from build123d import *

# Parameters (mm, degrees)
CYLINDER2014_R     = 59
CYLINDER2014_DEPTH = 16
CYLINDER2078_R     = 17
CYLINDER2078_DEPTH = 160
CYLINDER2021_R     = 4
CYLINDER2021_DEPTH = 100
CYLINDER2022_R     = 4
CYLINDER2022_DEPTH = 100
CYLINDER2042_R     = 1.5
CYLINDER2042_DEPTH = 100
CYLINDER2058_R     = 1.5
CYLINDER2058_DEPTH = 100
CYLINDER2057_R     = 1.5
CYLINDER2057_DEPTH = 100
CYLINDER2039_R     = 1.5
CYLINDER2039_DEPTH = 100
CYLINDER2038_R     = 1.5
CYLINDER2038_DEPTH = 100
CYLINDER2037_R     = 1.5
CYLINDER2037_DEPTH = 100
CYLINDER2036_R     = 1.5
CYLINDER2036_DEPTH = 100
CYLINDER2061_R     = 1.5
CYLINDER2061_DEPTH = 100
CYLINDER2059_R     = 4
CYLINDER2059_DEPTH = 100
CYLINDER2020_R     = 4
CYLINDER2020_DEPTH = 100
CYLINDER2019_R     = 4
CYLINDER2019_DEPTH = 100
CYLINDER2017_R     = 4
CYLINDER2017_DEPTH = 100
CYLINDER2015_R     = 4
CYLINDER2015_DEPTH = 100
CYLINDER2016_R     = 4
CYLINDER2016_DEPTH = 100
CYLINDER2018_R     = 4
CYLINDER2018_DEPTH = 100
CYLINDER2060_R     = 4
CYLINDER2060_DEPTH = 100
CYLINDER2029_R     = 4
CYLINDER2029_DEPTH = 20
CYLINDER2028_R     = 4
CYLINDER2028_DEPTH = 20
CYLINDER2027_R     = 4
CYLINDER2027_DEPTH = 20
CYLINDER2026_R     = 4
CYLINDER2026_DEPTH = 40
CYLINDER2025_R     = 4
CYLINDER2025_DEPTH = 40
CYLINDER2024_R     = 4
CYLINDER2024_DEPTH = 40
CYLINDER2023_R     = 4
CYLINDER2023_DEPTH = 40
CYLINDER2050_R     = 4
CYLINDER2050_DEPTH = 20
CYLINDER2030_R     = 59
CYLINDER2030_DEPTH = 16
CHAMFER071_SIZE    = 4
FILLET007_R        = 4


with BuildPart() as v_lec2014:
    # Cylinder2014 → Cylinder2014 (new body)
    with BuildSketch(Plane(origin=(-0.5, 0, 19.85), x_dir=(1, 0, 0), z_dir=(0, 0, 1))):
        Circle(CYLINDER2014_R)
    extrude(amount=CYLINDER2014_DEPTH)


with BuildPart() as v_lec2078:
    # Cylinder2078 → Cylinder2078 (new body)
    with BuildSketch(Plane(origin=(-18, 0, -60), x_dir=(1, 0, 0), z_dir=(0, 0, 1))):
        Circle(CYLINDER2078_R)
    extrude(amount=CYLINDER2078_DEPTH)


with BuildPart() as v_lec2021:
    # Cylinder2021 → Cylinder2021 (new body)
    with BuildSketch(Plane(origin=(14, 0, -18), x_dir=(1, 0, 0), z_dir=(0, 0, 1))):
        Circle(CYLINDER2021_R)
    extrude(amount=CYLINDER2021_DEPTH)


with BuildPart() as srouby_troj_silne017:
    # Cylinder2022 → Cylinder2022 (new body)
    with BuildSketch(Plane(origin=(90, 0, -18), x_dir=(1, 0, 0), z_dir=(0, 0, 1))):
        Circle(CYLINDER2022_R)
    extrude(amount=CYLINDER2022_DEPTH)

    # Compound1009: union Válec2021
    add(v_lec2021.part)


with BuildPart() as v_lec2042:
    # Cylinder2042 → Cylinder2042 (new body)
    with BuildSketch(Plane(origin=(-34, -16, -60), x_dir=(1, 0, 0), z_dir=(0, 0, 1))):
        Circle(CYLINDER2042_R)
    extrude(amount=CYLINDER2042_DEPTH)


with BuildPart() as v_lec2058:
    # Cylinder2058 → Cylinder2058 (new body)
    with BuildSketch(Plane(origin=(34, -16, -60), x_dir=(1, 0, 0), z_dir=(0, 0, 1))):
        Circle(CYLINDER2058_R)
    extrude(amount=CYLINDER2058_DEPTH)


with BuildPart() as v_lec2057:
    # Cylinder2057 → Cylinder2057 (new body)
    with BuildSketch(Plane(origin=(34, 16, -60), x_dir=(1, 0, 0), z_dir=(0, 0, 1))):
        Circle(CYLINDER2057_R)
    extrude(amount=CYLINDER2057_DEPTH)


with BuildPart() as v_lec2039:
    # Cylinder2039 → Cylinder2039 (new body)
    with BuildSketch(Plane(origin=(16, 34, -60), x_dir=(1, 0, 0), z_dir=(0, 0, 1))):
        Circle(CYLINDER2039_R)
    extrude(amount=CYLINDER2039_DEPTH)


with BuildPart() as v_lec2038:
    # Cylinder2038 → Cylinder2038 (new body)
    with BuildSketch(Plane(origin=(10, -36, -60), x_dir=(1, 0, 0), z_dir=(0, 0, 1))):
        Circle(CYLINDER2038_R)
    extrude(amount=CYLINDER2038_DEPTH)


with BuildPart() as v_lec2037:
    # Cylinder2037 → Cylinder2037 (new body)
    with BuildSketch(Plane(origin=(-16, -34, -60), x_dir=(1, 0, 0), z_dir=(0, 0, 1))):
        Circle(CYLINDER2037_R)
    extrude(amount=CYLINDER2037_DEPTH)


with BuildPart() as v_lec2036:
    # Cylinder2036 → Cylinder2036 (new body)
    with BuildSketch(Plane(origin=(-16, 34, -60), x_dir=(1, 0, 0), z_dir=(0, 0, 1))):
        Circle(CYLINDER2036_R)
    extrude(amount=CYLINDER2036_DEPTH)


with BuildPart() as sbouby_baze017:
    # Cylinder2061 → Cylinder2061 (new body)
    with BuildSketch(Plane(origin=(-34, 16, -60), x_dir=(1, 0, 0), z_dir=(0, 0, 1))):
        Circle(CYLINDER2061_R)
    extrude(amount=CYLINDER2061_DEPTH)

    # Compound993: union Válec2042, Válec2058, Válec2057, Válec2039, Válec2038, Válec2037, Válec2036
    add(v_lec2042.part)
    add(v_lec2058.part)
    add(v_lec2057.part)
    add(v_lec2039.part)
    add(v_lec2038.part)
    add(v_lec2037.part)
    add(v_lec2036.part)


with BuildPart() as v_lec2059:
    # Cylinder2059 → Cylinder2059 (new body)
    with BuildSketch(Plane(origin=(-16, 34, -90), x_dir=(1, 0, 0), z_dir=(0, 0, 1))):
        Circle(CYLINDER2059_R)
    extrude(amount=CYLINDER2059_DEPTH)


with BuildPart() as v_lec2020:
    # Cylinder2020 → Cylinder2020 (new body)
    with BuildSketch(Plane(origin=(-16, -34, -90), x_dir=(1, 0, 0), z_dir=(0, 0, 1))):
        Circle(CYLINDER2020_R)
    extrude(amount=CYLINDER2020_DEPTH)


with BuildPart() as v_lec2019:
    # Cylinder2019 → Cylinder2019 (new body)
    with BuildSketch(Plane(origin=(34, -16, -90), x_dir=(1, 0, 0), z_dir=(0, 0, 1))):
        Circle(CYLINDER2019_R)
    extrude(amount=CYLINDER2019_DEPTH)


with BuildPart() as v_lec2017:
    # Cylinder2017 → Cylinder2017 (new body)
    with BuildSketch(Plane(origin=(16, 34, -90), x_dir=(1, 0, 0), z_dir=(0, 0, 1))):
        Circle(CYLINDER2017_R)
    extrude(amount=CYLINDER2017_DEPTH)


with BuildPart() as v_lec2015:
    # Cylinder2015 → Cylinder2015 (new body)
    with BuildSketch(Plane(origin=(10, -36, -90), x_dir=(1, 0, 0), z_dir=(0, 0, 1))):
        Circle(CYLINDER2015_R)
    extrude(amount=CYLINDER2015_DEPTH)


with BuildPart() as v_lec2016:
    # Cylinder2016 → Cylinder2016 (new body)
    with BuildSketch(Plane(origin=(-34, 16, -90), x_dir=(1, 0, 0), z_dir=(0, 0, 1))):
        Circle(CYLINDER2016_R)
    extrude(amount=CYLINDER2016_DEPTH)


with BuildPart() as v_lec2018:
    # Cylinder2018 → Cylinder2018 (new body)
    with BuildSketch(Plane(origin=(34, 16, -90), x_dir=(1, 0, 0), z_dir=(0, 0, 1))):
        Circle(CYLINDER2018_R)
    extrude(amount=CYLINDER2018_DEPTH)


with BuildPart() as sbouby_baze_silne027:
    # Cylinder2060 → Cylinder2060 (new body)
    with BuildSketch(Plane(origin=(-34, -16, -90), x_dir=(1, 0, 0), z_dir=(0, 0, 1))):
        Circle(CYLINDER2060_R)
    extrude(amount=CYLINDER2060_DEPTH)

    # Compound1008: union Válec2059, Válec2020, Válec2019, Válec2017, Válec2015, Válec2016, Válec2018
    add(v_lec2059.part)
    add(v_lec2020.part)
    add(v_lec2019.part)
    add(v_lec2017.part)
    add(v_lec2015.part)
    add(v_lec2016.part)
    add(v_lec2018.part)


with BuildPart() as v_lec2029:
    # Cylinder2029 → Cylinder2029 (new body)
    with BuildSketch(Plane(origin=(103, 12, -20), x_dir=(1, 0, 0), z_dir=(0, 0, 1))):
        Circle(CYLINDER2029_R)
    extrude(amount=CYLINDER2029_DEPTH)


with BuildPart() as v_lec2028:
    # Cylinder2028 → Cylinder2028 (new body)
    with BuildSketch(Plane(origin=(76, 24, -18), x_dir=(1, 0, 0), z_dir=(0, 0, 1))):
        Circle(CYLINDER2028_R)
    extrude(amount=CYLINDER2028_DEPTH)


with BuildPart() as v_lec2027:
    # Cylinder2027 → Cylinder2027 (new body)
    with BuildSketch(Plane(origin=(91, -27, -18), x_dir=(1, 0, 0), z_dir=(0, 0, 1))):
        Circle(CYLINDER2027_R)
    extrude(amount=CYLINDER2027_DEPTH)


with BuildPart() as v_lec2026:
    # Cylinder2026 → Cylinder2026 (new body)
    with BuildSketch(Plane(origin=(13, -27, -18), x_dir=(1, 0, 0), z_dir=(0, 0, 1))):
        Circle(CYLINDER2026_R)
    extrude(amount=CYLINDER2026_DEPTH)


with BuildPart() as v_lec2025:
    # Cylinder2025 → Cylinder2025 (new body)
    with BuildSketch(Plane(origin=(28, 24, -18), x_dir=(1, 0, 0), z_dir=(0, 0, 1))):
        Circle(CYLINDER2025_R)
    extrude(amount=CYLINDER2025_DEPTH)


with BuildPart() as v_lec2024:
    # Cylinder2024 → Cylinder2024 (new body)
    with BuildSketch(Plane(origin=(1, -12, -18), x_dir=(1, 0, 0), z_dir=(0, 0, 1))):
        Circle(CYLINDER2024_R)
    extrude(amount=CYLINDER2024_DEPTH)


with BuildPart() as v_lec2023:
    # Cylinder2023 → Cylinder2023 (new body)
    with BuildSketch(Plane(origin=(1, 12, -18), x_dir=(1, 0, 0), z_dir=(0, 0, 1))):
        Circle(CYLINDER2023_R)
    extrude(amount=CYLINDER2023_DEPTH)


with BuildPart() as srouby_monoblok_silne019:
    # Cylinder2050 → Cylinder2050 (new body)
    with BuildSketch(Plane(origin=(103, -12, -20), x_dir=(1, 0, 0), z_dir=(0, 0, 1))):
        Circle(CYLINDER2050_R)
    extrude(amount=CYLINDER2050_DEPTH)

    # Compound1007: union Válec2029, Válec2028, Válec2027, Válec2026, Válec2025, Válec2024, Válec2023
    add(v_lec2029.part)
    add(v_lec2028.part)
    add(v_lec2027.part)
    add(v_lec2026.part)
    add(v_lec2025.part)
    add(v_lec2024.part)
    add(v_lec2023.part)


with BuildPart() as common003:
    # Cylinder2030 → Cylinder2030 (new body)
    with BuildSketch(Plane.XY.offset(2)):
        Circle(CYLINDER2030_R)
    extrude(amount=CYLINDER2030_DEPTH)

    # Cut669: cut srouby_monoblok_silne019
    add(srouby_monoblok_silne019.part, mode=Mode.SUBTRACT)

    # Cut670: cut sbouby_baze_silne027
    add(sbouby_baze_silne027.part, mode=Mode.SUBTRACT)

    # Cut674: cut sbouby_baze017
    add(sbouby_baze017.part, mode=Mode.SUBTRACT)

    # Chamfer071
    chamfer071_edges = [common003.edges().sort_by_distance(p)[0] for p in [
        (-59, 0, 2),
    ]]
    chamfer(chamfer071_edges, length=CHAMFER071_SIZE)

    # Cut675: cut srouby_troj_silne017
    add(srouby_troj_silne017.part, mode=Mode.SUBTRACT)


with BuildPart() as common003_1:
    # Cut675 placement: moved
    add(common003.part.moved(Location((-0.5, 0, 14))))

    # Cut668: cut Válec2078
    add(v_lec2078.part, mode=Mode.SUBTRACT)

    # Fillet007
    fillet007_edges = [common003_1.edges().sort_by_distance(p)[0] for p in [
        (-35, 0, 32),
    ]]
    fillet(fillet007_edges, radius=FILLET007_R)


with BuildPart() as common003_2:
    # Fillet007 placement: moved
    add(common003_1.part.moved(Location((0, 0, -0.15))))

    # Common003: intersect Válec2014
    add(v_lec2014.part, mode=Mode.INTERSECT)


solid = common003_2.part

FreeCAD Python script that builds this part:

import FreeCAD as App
import Part
import Sketcher

V = App.Vector


def edges_at(feature, points):
    """Names of the edges that pass closest to the given points."""
    edges = feature.Shape.Edges
    near = lambda p: min(range(len(edges)), key=lambda i: edges[i].distToShape(Part.Vertex(*p))[0])
    return sorted({f"Edge{near(p) + 1}" for p in points})

doc = App.newDocument("Part")
body = doc.addObject("PartDesign::Body", "Body")

# Sketch on XY plane
sketch1 = body.newObject("Sketcher::SketchObject", "Sketch")
sketch1.AttachmentSupport = (doc.getObject("XY_Plane"), [""])
sketch1.MapMode = "FlatFace"
sketch1.AttachmentOffset = App.Placement(V(0, 0, 19.85), App.Rotation())
sketch1.addGeometry(Part.Circle(V(-0.5, 0, 0), V(0, 0, 1), 59), False)
sketch1.addConstraint(Sketcher.Constraint("PointOnObject", 0, 3, -1))
sketch1.addConstraint(Sketcher.Constraint("Diameter", 0, 118.0))
sketch1.addConstraint(Sketcher.Constraint("DistanceX", 0, 3, -1, 1, 0.5))
pad1 = body.newObject("PartDesign::Pad", "Pad")
pad1.Profile = sketch1
pad1.Length = 16
body2 = doc.addObject("PartDesign::Body", "Body001")

# Sketch on XY plane
sketch2 = body2.newObject("Sketcher::SketchObject", "Sketch001")
sketch2.AttachmentSupport = (doc.getObject("XY_Plane001"), [""])
sketch2.MapMode = "FlatFace"
sketch2.AttachmentOffset = App.Placement(V(0, 0, -60), App.Rotation())
sketch2.addGeometry(Part.Circle(V(-18, 0, 0), V(0, 0, 1), 17), False)
sketch2.addConstraint(Sketcher.Constraint("PointOnObject", 0, 3, -1))
sketch2.addConstraint(Sketcher.Constraint("Diameter", 0, 34.0))
sketch2.addConstraint(Sketcher.Constraint("DistanceX", 0, 3, -1, 1, 18.0))
pad2 = body2.newObject("PartDesign::Pad", "Pad001")
pad2.Profile = sketch2
pad2.Length = 160
body3 = doc.addObject("PartDesign::Body", "Body002")

# Sketch on XY plane
sketch3 = body3.newObject("Sketcher::SketchObject", "Sketch002")
sketch3.AttachmentSupport = (doc.getObject("XY_Plane002"), [""])
sketch3.MapMode = "FlatFace"
sketch3.AttachmentOffset = App.Placement(V(0, 0, -18), App.Rotation())
sketch3.addGeometry(Part.Circle(V(14, 0, 0), V(0, 0, 1), 4), False)
sketch3.addConstraint(Sketcher.Constraint("PointOnObject", 0, 3, -1))
sketch3.addConstraint(Sketcher.Constraint("Diameter", 0, 8.0))
sketch3.addConstraint(Sketcher.Constraint("DistanceX", -1, 1, 0, 3, 14.0))
pad3 = body3.newObject("PartDesign::Pad", "Pad002")
pad3.Profile = sketch3
pad3.Length = 100
body4 = doc.addObject("PartDesign::Body", "Body003")
body4.AllowCompound = True

# Sketch on XY plane
sketch4 = body4.newObject("Sketcher::SketchObject", "Sketch003")
sketch4.AttachmentSupport = (doc.getObject("XY_Plane003"), [""])
sketch4.MapMode = "FlatFace"
sketch4.AttachmentOffset = App.Placement(V(0, 0, -18), App.Rotation())
sketch4.addGeometry(Part.Circle(V(90, 0, 0), V(0, 0, 1), 4), False)
sketch4.addConstraint(Sketcher.Constraint("PointOnObject", 0, 3, -1))
sketch4.addConstraint(Sketcher.Constraint("Diameter", 0, 8.0))
sketch4.addConstraint(Sketcher.Constraint("DistanceX", -1, 1, 0, 3, 90.0))
pad4 = body4.newObject("PartDesign::Pad", "Pad003")
pad4.Profile = sketch4
pad4.Length = 100
doc.recompute()

boolean = body4.newObject("PartDesign::Boolean", "Boolean")
boolean.Type = "Fuse"
boolean.addObjects([body3])
body5 = doc.addObject("PartDesign::Body", "Body004")

# Sketch on XY plane
sketch5 = body5.newObject("Sketcher::SketchObject", "Sketch004")
sketch5.AttachmentSupport = (doc.getObject("XY_Plane004"), [""])
sketch5.MapMode = "FlatFace"
sketch5.AttachmentOffset = App.Placement(V(0, 0, -60), App.Rotation())
sketch5.addGeometry(Part.Circle(V(-34, -16, 0), V(0, 0, 1), 1.5), False)
sketch5.addConstraint(Sketcher.Constraint("Diameter", 0, 3.0))
sketch5.addConstraint(Sketcher.Constraint("DistanceX", 0, 3, -1, 1, 34.0))
sketch5.addConstraint(Sketcher.Constraint("DistanceY", 0, 3, -1, 1, 16.0))
pad5 = body5.newObject("PartDesign::Pad", "Pad004")
pad5.Profile = sketch5
pad5.Length = 100
body6 = doc.addObject("PartDesign::Body", "Body005")

# Sketch on XY plane
sketch6 = body6.newObject("Sketcher::SketchObject", "Sketch005")
sketch6.AttachmentSupport = (doc.getObject("XY_Plane005"), [""])
sketch6.MapMode = "FlatFace"
sketch6.AttachmentOffset = App.Placement(V(0, 0, -60), App.Rotation())
sketch6.addGeometry(Part.Circle(V(34, -16, 0), V(0, 0, 1), 1.5), False)
sketch6.addConstraint(Sketcher.Constraint("Diameter", 0, 3.0))
sketch6.addConstraint(Sketcher.Constraint("DistanceX", -1, 1, 0, 3, 34.0))
sketch6.addConstraint(Sketcher.Constraint("DistanceY", 0, 3, -1, 1, 16.0))
pad6 = body6.newObject("PartDesign::Pad", "Pad005")
pad6.Profile = sketch6
pad6.Length = 100
body7 = doc.addObject("PartDesign::Body", "Body006")

# Sketch on XY plane
sketch7 = body7.newObject("Sketcher::SketchObject", "Sketch006")
sketch7.AttachmentSupport = (doc.getObject("XY_Plane006"), [""])
sketch7.MapMode = "FlatFace"
sketch7.AttachmentOffset = App.Placement(V(0, 0, -60), App.Rotation())
sketch7.addGeometry(Part.Circle(V(34, 16, 0), V(0, 0, 1), 1.5), False)
sketch7.addConstraint(Sketcher.Constraint("Diameter", 0, 3.0))
sketch7.addConstraint(Sketcher.Constraint("DistanceX", -1, 1, 0, 3, 34.0))
sketch7.addConstraint(Sketcher.Constraint("DistanceY", -1, 1, 0, 3, 16.0))
pad7 = body7.newObject("PartDesign::Pad", "Pad006")
pad7.Profile = sketch7
pad7.Length = 100
body8 = doc.addObject("PartDesign::Body", "Body007")

# Sketch on XY plane
sketch8 = body8.newObject("Sketcher::SketchObject", "Sketch007")
sketch8.AttachmentSupport = (doc.getObject("XY_Plane007"), [""])
sketch8.MapMode = "FlatFace"
sketch8.AttachmentOffset = App.Placement(V(0, 0, -60), App.Rotation())
sketch8.addGeometry(Part.Circle(V(16, 34, 0), V(0, 0, 1), 1.5), False)
sketch8.addConstraint(Sketcher.Constraint("Diameter", 0, 3.0))
sketch8.addConstraint(Sketcher.Constraint("DistanceX", -1, 1, 0, 3, 16.0))
sketch8.addConstraint(Sketcher.Constraint("DistanceY", -1, 1, 0, 3, 34.0))
pad8 = body8.newObject("PartDesign::Pad", "Pad007")
pad8.Profile = sketch8
pad8.Length = 100
body9 = doc.addObject("PartDesign::Body", "Body008")

# Sketch on XY plane
sketch9 = body9.newObject("Sketcher::SketchObject", "Sketch008")
sketch9.AttachmentSupport = (doc.getObject("XY_Plane008"), [""])
sketch9.MapMode = "FlatFace"
sketch9.AttachmentOffset = App.Placement(V(0, 0, -60), App.Rotation())
sketch9.addGeometry(Part.Circle(V(10, -36, 0), V(0, 0, 1), 1.5), False)
sketch9.addConstraint(Sketcher.Constraint("Diameter", 0, 3.0))
sketch9.addConstraint(Sketcher.Constraint("DistanceX", -1, 1, 0, 3, 10.0))
sketch9.addConstraint(Sketcher.Constraint("DistanceY", 0, 3, -1, 1, 36.0))
pad9 = body9.newObject("PartDesign::Pad", "Pad008")
pad9.Profile = sketch9
pad9.Length = 100
body10 = doc.addObject("PartDesign::Body", "Body009")

# Sketch on XY plane
sketch10 = body10.newObject("Sketcher::SketchObject", "Sketch009")
sketch10.AttachmentSupport = (doc.getObject("XY_Plane009"), [""])
sketch10.MapMode = "FlatFace"
sketch10.AttachmentOffset = App.Placement(V(0, 0, -60), App.Rotation())
sketch10.addGeometry(Part.Circle(V(-16, -34, 0), V(0, 0, 1), 1.5), False)
sketch10.addConstraint(Sketcher.Constraint("Diameter", 0, 3.0))
sketch10.addConstraint(Sketcher.Constraint("DistanceX", 0, 3, -1, 1, 16.0))
sketch10.addConstraint(Sketcher.Constraint("DistanceY", 0, 3, -1, 1, 34.0))
pad10 = body10.newObject("PartDesign::Pad", "Pad009")
pad10.Profile = sketch10
pad10.Length = 100
body11 = doc.addObject("PartDesign::Body", "Body010")

# Sketch on XY plane
sketch11 = body11.newObject("Sketcher::SketchObject", "Sketch010")
sketch11.AttachmentSupport = (doc.getObject("XY_Plane010"), [""])
sketch11.MapMode = "FlatFace"
sketch11.AttachmentOffset = App.Placement(V(0, 0, -60), App.Rotation())
sketch11.addGeometry(Part.Circle(V(-16, 34, 0), V(0, 0, 1), 1.5), False)
sketch11.addConstraint(Sketcher.Constraint("Diameter", 0, 3.0))
sketch11.addConstraint(Sketcher.Constraint("DistanceX", 0, 3, -1, 1, 16.0))
sketch11.addConstraint(Sketcher.Constraint("DistanceY", -1, 1, 0, 3, 34.0))
pad11 = body11.newObject("PartDesign::Pad", "Pad010")
pad11.Profile = sketch11
pad11.Length = 100
body12 = doc.addObject("PartDesign::Body", "Body011")
body12.AllowCompound = True

# Sketch on XY plane
sketch12 = body12.newObject("Sketcher::SketchObject", "Sketch011")
sketch12.AttachmentSupport = (doc.getObject("XY_Plane011"), [""])
sketch12.MapMode = "FlatFace"
sketch12.AttachmentOffset = App.Placement(V(0, 0, -60), App.Rotation())
sketch12.addGeometry(Part.Circle(V(-34, 16, 0), V(0, 0, 1), 1.5), False)
sketch12.addConstraint(Sketcher.Constraint("Diameter", 0, 3.0))
sketch12.addConstraint(Sketcher.Constraint("DistanceX", 0, 3, -1, 1, 34.0))
sketch12.addConstraint(Sketcher.Constraint("DistanceY", -1, 1, 0, 3, 16.0))
pad12 = body12.newObject("PartDesign::Pad", "Pad011")
pad12.Profile = sketch12
pad12.Length = 100
doc.recompute()

boolean2 = body12.newObject("PartDesign::Boolean", "Boolean001")
boolean2.Type = "Fuse"
boolean2.addObjects([body5])
doc.recompute()

boolean3 = body12.newObject("PartDesign::Boolean", "Boolean002")
boolean3.Type = "Fuse"
boolean3.addObjects([body6])
doc.recompute()

boolean4 = body12.newObject("PartDesign::Boolean", "Boolean003")
boolean4.Type = "Fuse"
boolean4.addObjects([body7])
doc.recompute()

boolean5 = body12.newObject("PartDesign::Boolean", "Boolean004")
boolean5.Type = "Fuse"
boolean5.addObjects([body8])
doc.recompute()

boolean6 = body12.newObject("PartDesign::Boolean", "Boolean005")
boolean6.Type = "Fuse"
boolean6.addObjects([body9])
doc.recompute()

boolean7 = body12.newObject("PartDesign::Boolean", "Boolean006")
boolean7.Type = "Fuse"
boolean7.addObjects([body10])
doc.recompute()

boolean8 = body12.newObject("PartDesign::Boolean", "Boolean007")
boolean8.Type = "Fuse"
boolean8.addObjects([body11])
body13 = doc.addObject("PartDesign::Body", "Body012")

# Sketch on XY plane
sketch13 = body13.newObject("Sketcher::SketchObject", "Sketch012")
sketch13.AttachmentSupport = (doc.getObject("XY_Plane012"), [""])
sketch13.MapMode = "FlatFace"
sketch13.AttachmentOffset = App.Placement(V(0, 0, -90), App.Rotation())
sketch13.addGeometry(Part.Circle(V(-16, 34, 0), V(0, 0, 1), 4), False)
sketch13.addConstraint(Sketcher.Constraint("Diameter", 0, 8.0))
sketch13.addConstraint(Sketcher.Constraint("DistanceX", 0, 3, -1, 1, 16.0))
sketch13.addConstraint(Sketcher.Constraint("DistanceY", -1, 1, 0, 3, 34.0))
pad13 = body13.newObject("PartDesign::Pad", "Pad012")
pad13.Profile = sketch13
pad13.Length = 100
body14 = doc.addObject("PartDesign::Body", "Body013")

# Sketch on XY plane
sketch14 = body14.newObject("Sketcher::SketchObject", "Sketch013")
sketch14.AttachmentSupport = (doc.getObject("XY_Plane013"), [""])
sketch14.MapMode = "FlatFace"
sketch14.AttachmentOffset = App.Placement(V(0, 0, -90), App.Rotation())
sketch14.addGeometry(Part.Circle(V(-16, -34, 0), V(0, 0, 1), 4), False)
sketch14.addConstraint(Sketcher.Constraint("Diameter", 0, 8.0))
sketch14.addConstraint(Sketcher.Constraint("DistanceX", 0, 3, -1, 1, 16.0))
sketch14.addConstraint(Sketcher.Constraint("DistanceY", 0, 3, -1, 1, 34.0))
pad14 = body14.newObject("PartDesign::Pad", "Pad013")
pad14.Profile = sketch14
pad14.Length = 100
body15 = doc.addObject("PartDesign::Body", "Body014")

# Sketch on XY plane
sketch15 = body15.newObject("Sketcher::SketchObject", "Sketch014")
sketch15.AttachmentSupport = (doc.getObject("XY_Plane014"), [""])
sketch15.MapMode = "FlatFace"
sketch15.AttachmentOffset = App.Placement(V(0, 0, -90), App.Rotation())
sketch15.addGeometry(Part.Circle(V(34, -16, 0), V(0, 0, 1), 4), False)
sketch15.addConstraint(Sketcher.Constraint("Diameter", 0, 8.0))
sketch15.addConstraint(Sketcher.Constraint("DistanceX", -1, 1, 0, 3, 34.0))
sketch15.addConstraint(Sketcher.Constraint("DistanceY", 0, 3, -1, 1, 16.0))
pad15 = body15.newObject("PartDesign::Pad", "Pad014")
pad15.Profile = sketch15
pad15.Length = 100
body16 = doc.addObject("PartDesign::Body", "Body015")

# Sketch on XY plane
sketch16 = body16.newObject("Sketcher::SketchObject", "Sketch015")
sketch16.AttachmentSupport = (doc.getObject("XY_Plane015"), [""])
sketch16.MapMode = "FlatFace"
sketch16.AttachmentOffset = App.Placement(V(0, 0, -90), App.Rotation())
sketch16.addGeometry(Part.Circle(V(16, 34, 0), V(0, 0, 1), 4), False)
sketch16.addConstraint(Sketcher.Constraint("Diameter", 0, 8.0))
sketch16.addConstraint(Sketcher.Constraint("DistanceX", -1, 1, 0, 3, 16.0))
sketch16.addConstraint(Sketcher.Constraint("DistanceY", -1, 1, 0, 3, 34.0))
pad16 = body16.newObject("PartDesign::Pad", "Pad015")
pad16.Profile = sketch16
pad16.Length = 100
body17 = doc.addObject("PartDesign::Body", "Body016")

# Sketch on XY plane
sketch17 = body17.newObject("Sketcher::SketchObject", "Sketch016")
sketch17.AttachmentSupport = (doc.getObject("XY_Plane016"), [""])
sketch17.MapMode = "FlatFace"
sketch17.AttachmentOffset = App.Placement(V(0, 0, -90), App.Rotation())
sketch17.addGeometry(Part.Circle(V(10, -36, 0), V(0, 0, 1), 4), False)
sketch17.addConstraint(Sketcher.Constraint("Diameter", 0, 8.0))
sketch17.addConstraint(Sketcher.Constraint("DistanceX", -1, 1, 0, 3, 10.0))
sketch17.addConstraint(Sketcher.Constraint("DistanceY", 0, 3, -1, 1, 36.0))
pad17 = body17.newObject("PartDesign::Pad", "Pad016")
pad17.Profile = sketch17
pad17.Length = 100
body18 = doc.addObject("PartDesign::Body", "Body017")

# Sketch on XY plane
sketch18 = body18.newObject("Sketcher::SketchObject", "Sketch017")
sketch18.AttachmentSupport = (doc.getObject("XY_Plane017"), [""])
sketch18.MapMode = "FlatFace"
sketch18.AttachmentOffset = App.Placement(V(0, 0, -90), App.Rotation())
sketch18.addGeometry(Part.Circle(V(-34, 16, 0), V(0, 0, 1), 4), False)
sketch18.addConstraint(Sketcher.Constraint("Diameter", 0, 8.0))
sketch18.addConstraint(Sketcher.Constraint("DistanceX", 0, 3, -1, 1, 34.0))
sketch18.addConstraint(Sketcher.Constraint("DistanceY", -1, 1, 0, 3, 16.0))
pad18 = body18.newObject("PartDesign::Pad", "Pad017")
pad18.Profile = sketch18
pad18.Length = 100
body19 = doc.addObject("PartDesign::Body", "Body018")

# Sketch on XY plane
sketch19 = body19.newObject("Sketcher::SketchObject", "Sketch018")
sketch19.AttachmentSupport = (doc.getObject("XY_Plane018"), [""])
sketch19.MapMode = "FlatFace"
sketch19.AttachmentOffset = App.Placement(V(0, 0, -90), App.Rotation())
sketch19.addGeometry(Part.Circle(V(34, 16, 0), V(0, 0, 1), 4), False)
sketch19.addConstraint(Sketcher.Constraint("Diameter", 0, 8.0))
sketch19.addConstraint(Sketcher.Constraint("DistanceX", -1, 1, 0, 3, 34.0))
sketch19.addConstraint(Sketcher.Constraint("DistanceY", -1, 1, 0, 3, 16.0))
pad19 = body19.newObject("PartDesign::Pad", "Pad018")
pad19.Profile = sketch19
pad19.Length = 100
body20 = doc.addObject("PartDesign::Body", "Body019")
body20.AllowCompound = True

# Sketch on XY plane
sketch20 = body20.newObject("Sketcher::SketchObject", "Sketch019")
sketch20.AttachmentSupport = (doc.getObject("XY_Plane019"), [""])
sketch20.MapMode = "FlatFace"
sketch20.AttachmentOffset = App.Placement(V(0, 0, -90), App.Rotation())
sketch20.addGeometry(Part.Circle(V(-34, -16, 0), V(0, 0, 1), 4), False)
sketch20.addConstraint(Sketcher.Constraint("Diameter", 0, 8.0))
sketch20.addConstraint(Sketcher.Constraint("DistanceX", 0, 3, -1, 1, 34.0))
sketch20.addConstraint(Sketcher.Constraint("DistanceY", 0, 3, -1, 1, 16.0))
pad20 = body20.newObject("PartDesign::Pad", "Pad019")
pad20.Profile = sketch20
pad20.Length = 100
doc.recompute()

boolean9 = body20.newObject("PartDesign::Boolean", "Boolean008")
boolean9.Type = "Fuse"
boolean9.addObjects([body13])
doc.recompute()

boolean10 = body20.newObject("PartDesign::Boolean", "Boolean009")
boolean10.Type = "Fuse"
boolean10.addObjects([body14])
doc.recompute()

boolean11 = body20.newObject("PartDesign::Boolean", "Boolean010")
boolean11.Type = "Fuse"
boolean11.addObjects([body15])
doc.recompute()

boolean12 = body20.newObject("PartDesign::Boolean", "Boolean011")
boolean12.Type = "Fuse"
boolean12.addObjects([body16])
doc.recompute()

boolean13 = body20.newObject("PartDesign::Boolean", "Boolean012")
boolean13.Type = "Fuse"
boolean13.addObjects([body17])
doc.recompute()

boolean14 = body20.newObject("PartDesign::Boolean", "Boolean013")
boolean14.Type = "Fuse"
boolean14.addObjects([body18])
doc.recompute()

boolean15 = body20.newObject("PartDesign::Boolean", "Boolean014")
boolean15.Type = "Fuse"
boolean15.addObjects([body19])
body21 = doc.addObject("PartDesign::Body", "Body020")

# Sketch on XY plane
sketch21 = body21.newObject("Sketcher::SketchObject", "Sketch020")
sketch21.AttachmentSupport = (doc.getObject("XY_Plane020"), [""])
sketch21.MapMode = "FlatFace"
sketch21.AttachmentOffset = App.Placement(V(0, 0, -20), App.Rotation())
sketch21.addGeometry(Part.Circle(V(103, 12, 0), V(0, 0, 1), 4), False)
sketch21.addConstraint(Sketcher.Constraint("Diameter", 0, 8.0))
sketch21.addConstraint(Sketcher.Constraint("DistanceX", -1, 1, 0, 3, 103.0))
sketch21.addConstraint(Sketcher.Constraint("DistanceY", -1, 1, 0, 3, 12.0))
pad21 = body21.newObject("PartDesign::Pad", "Pad020")
pad21.Profile = sketch21
pad21.Length = 20
body22 = doc.addObject("PartDesign::Body", "Body021")

# Sketch on XY plane
sketch22 = body22.newObject("Sketcher::SketchObject", "Sketch021")
sketch22.AttachmentSupport = (doc.getObject("XY_Plane021"), [""])
sketch22.MapMode = "FlatFace"
sketch22.AttachmentOffset = App.Placement(V(0, 0, -18), App.Rotation())
sketch22.addGeometry(Part.Circle(V(76, 24, 0), V(0, 0, 1), 4), False)
sketch22.addConstraint(Sketcher.Constraint("Diameter", 0, 8.0))
sketch22.addConstraint(Sketcher.Constraint("DistanceX", -1, 1, 0, 3, 76.0))
sketch22.addConstraint(Sketcher.Constraint("DistanceY", -1, 1, 0, 3, 24.0))
pad22 = body22.newObject("PartDesign::Pad", "Pad021")
pad22.Profile = sketch22
pad22.Length = 20
body23 = doc.addObject("PartDesign::Body", "Body022")

# Sketch on XY plane
sketch23 = body23.newObject("Sketcher::SketchObject", "Sketch022")
sketch23.AttachmentSupport = (doc.getObject("XY_Plane022"), [""])
sketch23.MapMode = "FlatFace"
sketch23.AttachmentOffset = App.Placement(V(0, 0, -18), App.Rotation())
sketch23.addGeometry(Part.Circle(V(91, -27, 0), V(0, 0, 1), 4), False)
sketch23.addConstraint(Sketcher.Constraint("Diameter", 0, 8.0))
sketch23.addConstraint(Sketcher.Constraint("DistanceX", -1, 1, 0, 3, 91.0))
sketch23.addConstraint(Sketcher.Constraint("DistanceY", 0, 3, -1, 1, 27.0))
pad23 = body23.newObject("PartDesign::Pad", "Pad022")
pad23.Profile = sketch23
pad23.Length = 20
body24 = doc.addObject("PartDesign::Body", "Body023")

# Sketch on XY plane
sketch24 = body24.newObject("Sketcher::SketchObject", "Sketch023")
sketch24.AttachmentSupport = (doc.getObject("XY_Plane023"), [""])
sketch24.MapMode = "FlatFace"
sketch24.AttachmentOffset = App.Placement(V(0, 0, -18), App.Rotation())
sketch24.addGeometry(Part.Circle(V(13, -27, 0), V(0, 0, 1), 4), False)
sketch24.addConstraint(Sketcher.Constraint("Diameter", 0, 8.0))
sketch24.addConstraint(Sketcher.Constraint("DistanceX", -1, 1, 0, 3, 13.0))
sketch24.addConstraint(Sketcher.Constraint("DistanceY", 0, 3, -1, 1, 27.0))
pad24 = body24.newObject("PartDesign::Pad", "Pad023")
pad24.Profile = sketch24
pad24.Length = 40
body25 = doc.addObject("PartDesign::Body", "Body024")

# Sketch on XY plane
sketch25 = body25.newObject("Sketcher::SketchObject", "Sketch024")
sketch25.AttachmentSupport = (doc.getObject("XY_Plane024"), [""])
sketch25.MapMode = "FlatFace"
sketch25.AttachmentOffset = App.Placement(V(0, 0, -18), App.Rotation())
sketch25.addGeometry(Part.Circle(V(28, 24, 0), V(0, 0, 1), 4), False)
sketch25.addConstraint(Sketcher.Constraint("Diameter", 0, 8.0))
sketch25.addConstraint(Sketcher.Constraint("DistanceX", -1, 1, 0, 3, 28.0))
sketch25.addConstraint(Sketcher.Constraint("DistanceY", -1, 1, 0, 3, 24.0))
pad25 = body25.newObject("PartDesign::Pad", "Pad024")
pad25.Profile = sketch25
pad25.Length = 40
body26 = doc.addObject("PartDesign::Body", "Body025")

# Sketch on XY plane
sketch26 = body26.newObject("Sketcher::SketchObject", "Sketch025")
sketch26.AttachmentSupport = (doc.getObject("XY_Plane025"), [""])
sketch26.MapMode = "FlatFace"
sketch26.AttachmentOffset = App.Placement(V(0, 0, -18), App.Rotation())
sketch26.addGeometry(Part.Circle(V(1, -12, 0), V(0, 0, 1), 4), False)
sketch26.addConstraint(Sketcher.Constraint("Diameter", 0, 8.0))
sketch26.addConstraint(Sketcher.Constraint("DistanceX", -1, 1, 0, 3, 1.0))
sketch26.addConstraint(Sketcher.Constraint("DistanceY", 0, 3, -1, 1, 12.0))
pad26 = body26.newObject("PartDesign::Pad", "Pad025")
pad26.Profile = sketch26
pad26.Length = 40
body27 = doc.addObject("PartDesign::Body", "Body026")

# Sketch on XY plane
sketch27 = body27.newObject("Sketcher::SketchObject", "Sketch026")
sketch27.AttachmentSupport = (doc.getObject("XY_Plane026"), [""])
sketch27.MapMode = "FlatFace"
sketch27.AttachmentOffset = App.Placement(V(0, 0, -18), App.Rotation())
sketch27.addGeometry(Part.Circle(V(1, 12, 0), V(0, 0, 1), 4), False)
sketch27.addConstraint(Sketcher.Constraint("Diameter", 0, 8.0))
sketch27.addConstraint(Sketcher.Constraint("DistanceX", -1, 1, 0, 3, 1.0))
sketch27.addConstraint(Sketcher.Constraint("DistanceY", -1, 1, 0, 3, 12.0))
pad27 = body27.newObject("PartDesign::Pad", "Pad026")
pad27.Profile = sketch27
pad27.Length = 40
body28 = doc.addObject("PartDesign::Body", "Body027")
body28.AllowCompound = True

# Sketch on XY plane
sketch28 = body28.newObject("Sketcher::SketchObject", "Sketch027")
sketch28.AttachmentSupport = (doc.getObject("XY_Plane027"), [""])
sketch28.MapMode = "FlatFace"
sketch28.AttachmentOffset = App.Placement(V(0, 0, -20), App.Rotation())
sketch28.addGeometry(Part.Circle(V(103, -12, 0), V(0, 0, 1), 4), False)
sketch28.addConstraint(Sketcher.Constraint("Diameter", 0, 8.0))
sketch28.addConstraint(Sketcher.Constraint("DistanceX", -1, 1, 0, 3, 103.0))
sketch28.addConstraint(Sketcher.Constraint("DistanceY", 0, 3, -1, 1, 12.0))
pad28 = body28.newObject("PartDesign::Pad", "Pad027")
pad28.Profile = sketch28
pad28.Length = 20
doc.recompute()

boolean16 = body28.newObject("PartDesign::Boolean", "Boolean015")
boolean16.Type = "Fuse"
boolean16.addObjects([body21])
doc.recompute()

boolean17 = body28.newObject("PartDesign::Boolean", "Boolean016")
boolean17.Type = "Fuse"
boolean17.addObjects([body22])
doc.recompute()

boolean18 = body28.newObject("PartDesign::Boolean", "Boolean017")
boolean18.Type = "Fuse"
boolean18.addObjects([body23])
doc.recompute()

boolean19 = body28.newObject("PartDesign::Boolean", "Boolean018")
boolean19.Type = "Fuse"
boolean19.addObjects([body24])
doc.recompute()

boolean20 = body28.newObject("PartDesign::Boolean", "Boolean019")
boolean20.Type = "Fuse"
boolean20.addObjects([body25])
doc.recompute()

boolean21 = body28.newObject("PartDesign::Boolean", "Boolean020")
boolean21.Type = "Fuse"
boolean21.addObjects([body26])
doc.recompute()

boolean22 = body28.newObject("PartDesign::Boolean", "Boolean021")
boolean22.Type = "Fuse"
boolean22.addObjects([body27])
body29 = doc.addObject("PartDesign::Body", "Body028")

# Sketch on XY plane
sketch29 = body29.newObject("Sketcher::SketchObject", "Sketch028")
sketch29.AttachmentSupport = (doc.getObject("XY_Plane028"), [""])
sketch29.MapMode = "FlatFace"
sketch29.AttachmentOffset = App.Placement(V(0, 0, 2), App.Rotation())
sketch29.addGeometry(Part.Circle(V(0, 0, 0), V(0, 0, 1), 59), False)
sketch29.addConstraint(Sketcher.Constraint("Coincident", 0, 3, -1, 1))
sketch29.addConstraint(Sketcher.Constraint("Diameter", 0, 118.0))
pad29 = body29.newObject("PartDesign::Pad", "Pad028")
pad29.Profile = sketch29
pad29.Length = 16
doc.recompute()

boolean23 = body29.newObject("PartDesign::Boolean", "Boolean022")
boolean23.Type = "Cut"
boolean23.addObjects([body28])
doc.recompute()

boolean24 = body29.newObject("PartDesign::Boolean", "Boolean023")
boolean24.Type = "Cut"
boolean24.addObjects([body20])
doc.recompute()

boolean25 = body29.newObject("PartDesign::Boolean", "Boolean024")
boolean25.Type = "Cut"
boolean25.addObjects([body12])
doc.recompute()

chamfer = body29.newObject("PartDesign::Chamfer", "Chamfer")
chamfer.Base = (boolean25, edges_at(boolean25, [(-59, 0, 2)]))
chamfer.Size = 4
doc.recompute()

boolean26 = body29.newObject("PartDesign::Boolean", "Boolean025")
boolean26.Type = "Cut"
boolean26.addObjects([body4])
body30 = doc.addObject("PartDesign::Body", "Body029")
doc.recompute()

body29.Placement = App.Placement(V(-0.5, 0, 14), App.Rotation(V(0, 0, 1), 0))
boolean27 = body30.newObject("PartDesign::Boolean", "Boolean026")
boolean27.Type = "Fuse"
boolean27.addObjects([body29])
doc.recompute()

boolean28 = body30.newObject("PartDesign::Boolean", "Boolean027")
boolean28.Type = "Cut"
boolean28.addObjects([body2])
doc.recompute()

fillet = body30.newObject("PartDesign::Fillet", "Fillet")
fillet.Base = (boolean28, edges_at(boolean28, [(-35, 0, 32)]))
fillet.Radius = 4
body31 = doc.addObject("PartDesign::Body", "Body030")
doc.recompute()

body30.Placement = App.Placement(V(0, 0, -0.15), App.Rotation(V(0, 0, 1), 0))
boolean29 = body31.newObject("PartDesign::Boolean", "Boolean028")
boolean29.Type = "Fuse"
boolean29.addObjects([body30])
doc.recompute()

boolean30 = body31.newObject("PartDesign::Boolean", "Boolean029")
boolean30.Type = "Common"
boolean30.addObjects([body])

doc.recompute()
